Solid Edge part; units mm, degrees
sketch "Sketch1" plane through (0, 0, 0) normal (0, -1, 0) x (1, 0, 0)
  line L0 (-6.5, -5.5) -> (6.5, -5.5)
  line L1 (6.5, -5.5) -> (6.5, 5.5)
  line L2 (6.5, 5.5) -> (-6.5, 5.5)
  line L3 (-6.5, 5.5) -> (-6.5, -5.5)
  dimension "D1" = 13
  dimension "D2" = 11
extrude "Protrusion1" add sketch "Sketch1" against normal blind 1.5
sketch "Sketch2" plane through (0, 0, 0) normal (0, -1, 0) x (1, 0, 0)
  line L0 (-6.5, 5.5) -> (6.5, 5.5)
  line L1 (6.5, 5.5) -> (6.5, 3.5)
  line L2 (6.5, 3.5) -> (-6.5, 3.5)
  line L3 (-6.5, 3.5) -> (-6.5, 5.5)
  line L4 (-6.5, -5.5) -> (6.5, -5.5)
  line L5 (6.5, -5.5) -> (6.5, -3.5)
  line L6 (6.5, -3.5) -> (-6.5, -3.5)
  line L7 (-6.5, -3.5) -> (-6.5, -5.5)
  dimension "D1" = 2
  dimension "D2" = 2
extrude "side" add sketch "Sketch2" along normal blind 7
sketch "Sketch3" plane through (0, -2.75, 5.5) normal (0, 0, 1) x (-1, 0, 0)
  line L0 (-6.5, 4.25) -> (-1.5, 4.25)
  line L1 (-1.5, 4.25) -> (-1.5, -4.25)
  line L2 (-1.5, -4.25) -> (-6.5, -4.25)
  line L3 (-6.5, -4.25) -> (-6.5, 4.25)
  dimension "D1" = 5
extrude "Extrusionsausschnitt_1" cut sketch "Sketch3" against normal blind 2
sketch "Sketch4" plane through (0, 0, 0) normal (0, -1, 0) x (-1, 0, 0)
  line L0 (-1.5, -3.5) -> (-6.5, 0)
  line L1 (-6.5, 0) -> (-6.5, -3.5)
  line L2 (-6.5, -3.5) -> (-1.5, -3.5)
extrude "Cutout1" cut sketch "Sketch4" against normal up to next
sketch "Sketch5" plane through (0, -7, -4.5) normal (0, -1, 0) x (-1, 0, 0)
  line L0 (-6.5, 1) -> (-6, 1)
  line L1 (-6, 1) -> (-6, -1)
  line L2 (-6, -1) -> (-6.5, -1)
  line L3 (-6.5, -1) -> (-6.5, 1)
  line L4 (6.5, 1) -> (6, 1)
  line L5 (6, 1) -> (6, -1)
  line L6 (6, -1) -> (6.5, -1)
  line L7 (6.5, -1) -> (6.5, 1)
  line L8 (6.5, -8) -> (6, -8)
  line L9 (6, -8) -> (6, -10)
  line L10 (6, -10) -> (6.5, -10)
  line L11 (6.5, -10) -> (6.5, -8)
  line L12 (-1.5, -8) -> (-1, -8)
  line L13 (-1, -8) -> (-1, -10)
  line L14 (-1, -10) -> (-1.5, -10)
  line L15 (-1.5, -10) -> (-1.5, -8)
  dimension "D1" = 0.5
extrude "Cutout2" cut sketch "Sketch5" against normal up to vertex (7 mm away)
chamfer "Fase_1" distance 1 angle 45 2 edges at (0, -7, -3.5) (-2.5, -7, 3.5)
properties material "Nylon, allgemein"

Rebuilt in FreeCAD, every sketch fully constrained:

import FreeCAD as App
import Part
import Sketcher
from FreeCAD import Vector
Q = App.Units.Quantity


def edges_at(feature, points):
    """Names of the edges that pass closest to the given points."""
    edges = feature.Shape.Edges
    near = lambda p: min(range(len(edges)), key=lambda i: edges[i].distToShape(Part.Vertex(*p))[0])
    return sorted({f"Edge{near(p) + 1}" for p in points})


def add_polygon(sketch, points):
    """Adds a closed chain of lines whose ends are joined by coincident constraints."""
    first, n = sketch.GeometryCount, len(points)
    for a, b in zip(points, points[1:] + points[:1]):
        sketch.addGeometry(Part.LineSegment(App.Vector(*a, 0), App.Vector(*b, 0)), False)
    for i in range(n):
        sketch.addConstraint(Sketcher.Constraint("Coincident", first + i, 2, first + (i + 1) % n, 1))

doc = App.newDocument("Part")
body = doc.addObject("PartDesign::Body", "Body")

# Sketch on XZ plane
sketch1 = body.newObject("Sketcher::SketchObject", "Sketch")
sketch1.AttachmentSupport = (doc.getObject("XZ_Plane"), [""])
sketch1.MapMode = "FlatFace"
add_polygon(sketch1, [(-6.5, 5.5), (-6.5, -5.5), (6.5, -5.5), (6.5, 5.5)])  # lines 0-3
sketch1.addConstraint(Sketcher.Constraint("Vertical", 0))
sketch1.addConstraint(Sketcher.Constraint("Horizontal", 1))
sketch1.addConstraint(Sketcher.Constraint("Vertical", 2))
sketch1.addConstraint(Sketcher.Constraint("Horizontal", 3))
sketch1.addConstraint(Sketcher.Constraint("Symmetric", 0, 2, 2, 2, -1, 1))
sketch1.addConstraint(Sketcher.Constraint("DistanceX", 0, 2, -1, 1, Q("6.5 mm")))
sketch1.addConstraint(Sketcher.Constraint("DistanceY", 0, 2, 0, 1, Q("11 mm")))
pad1 = body.newObject("PartDesign::Pad", "Pad")
pad1.Profile = sketch1
pad1.Length = 1.5
pad1.Reversed = True

# Sketch on XZ plane
sketch2 = body.newObject("Sketcher::SketchObject", "Sketch001")
sketch2.AttachmentSupport = (doc.getObject("XZ_Plane"), [""])
sketch2.MapMode = "FlatFace"
add_polygon(sketch2, [(6.5, 5.5), (-6.5, 5.5), (-6.5, 3.5), (6.5, 3.5)])  # lines 0-3
add_polygon(sketch2, [(-6.5, -3.5), (-6.5, -5.5), (6.5, -5.5), (6.5, -3.5)])  # lines 4-7
sketch2.addConstraint(Sketcher.Constraint("Horizontal", 0))
sketch2.addConstraint(Sketcher.Constraint("Vertical", 1))
sketch2.addConstraint(Sketcher.Constraint("Horizontal", 2))
sketch2.addConstraint(Sketcher.Constraint("Vertical", 3))
sketch2.addConstraint(Sketcher.Constraint("Vertical", 4))
sketch2.addConstraint(Sketcher.Constraint("Horizontal", 5))
sketch2.addConstraint(Sketcher.Constraint("Vertical", 6))
sketch2.addConstraint(Sketcher.Constraint("Horizontal", 7))
sketch2.addConstraint(Sketcher.Constraint("Symmetric", 3, 2, 4, 2, -1, 1))
sketch2.addConstraint(Sketcher.Constraint("Symmetric", 1, 2, 6, 2, -1, 1))
sketch2.addConstraint(Sketcher.Constraint("Vertical", 1, 2, 4, 2))
sketch2.addConstraint(Sketcher.Constraint("DistanceX", 0, 2, -1, 1, Q("6.5 mm")))
sketch2.addConstraint(Sketcher.Constraint("DistanceY", 1, 2, 1, 1, Q("2 mm")))
sketch2.addConstraint(Sketcher.Constraint("DistanceY", 4, 2, 1, 2, Q("9 mm")))
pad2 = body.newObject("PartDesign::Pad", "Pad001")
pad2.Profile = sketch2
pad2.Length = 7

# Sketch on XY plane
sketch3 = body.newObject("Sketcher::SketchObject", "Sketch002")
sketch3.AttachmentSupport = (doc.getObject("XY_Plane"), [""])
sketch3.MapMode = "FlatFace"
sketch3.AttachmentOffset = App.Placement(Vector(0, 0, 5.5), App.Rotation())
add_polygon(sketch3, [(1.5, -7), (6.5, -7), (6.5, 1.5), (1.5, 1.5)])  # lines 0-3
sketch3.addConstraint(Sketcher.Constraint("Horizontal", 0))
sketch3.addConstraint(Sketcher.Constraint("Vertical", 1))
sketch3.addConstraint(Sketcher.Constraint("Horizontal", 2))
sketch3.addConstraint(Sketcher.Constraint("Vertical", 3))
sketch3.addConstraint(Sketcher.Constraint("DistanceX", -1, 1, 0, 2, Q("6.5 mm")))
sketch3.addConstraint(Sketcher.Constraint("DistanceX", 0, 1, 0, 2, Q("5 mm")))
sketch3.addConstraint(Sketcher.Constraint("DistanceY", 1, 1, 1, 2, Q("8.5 mm")))
sketch3.addConstraint(Sketcher.Constraint("DistanceY", 0, 2, -1, 1, Q("7 mm")))
pocket1 = body.newObject("PartDesign::Pocket", "Pocket")
pocket1.Profile = sketch3
pocket1.Length = 2

# Sketch on XZ plane
sketch4 = body.newObject("Sketcher::SketchObject", "Sketch003")
sketch4.AttachmentSupport = (doc.getObject("XZ_Plane"), [""])
sketch4.MapMode = "FlatFace"
add_polygon(sketch4, [(6.5, 3.5), (1.5, 3.5), (6.5, 0)])  # lines 0-2
sketch4.addConstraint(Sketcher.Constraint("Horizontal", 0))
sketch4.addConstraint(Sketcher.Constraint("Vertical", 2))
sketch4.addConstraint(Sketcher.Constraint("PointOnObject", 1, 2, -1))
sketch4.addConstraint(Sketcher.Constraint("DistanceX", 0, 2, 0, 1, Q("5 mm")))
sketch4.addConstraint(Sketcher.Constraint("DistanceY", 2, 1, 2, 2, Q("3.5 mm")))
sketch4.addConstraint(Sketcher.Constraint("DistanceX", -1, 1, 0, 2, Q("1.5 mm")))
pocket2 = body.newObject("PartDesign::Pocket", "Pocket001")
pocket2.Profile = sketch4
pocket2.Type = "UpToFirst"

# Sketch on XZ plane
sketch5 = body.newObject("Sketcher::SketchObject", "Sketch004")
sketch5.AttachmentSupport = (doc.getObject("XZ_Plane"), [""])
sketch5.MapMode = "FlatFace"
sketch5.AttachmentOffset = App.Placement(Vector(0, 0, 7), App.Rotation())
add_polygon(sketch5, [(6, -5.5), (6.5, -5.5), (6.5, -3.5), (6, -3.5)])  # lines 0-3
add_polygon(sketch5, [(-6.5, -3.5), (-6.5, -5.5), (-6, -5.5), (-6, -3.5)])  # lines 4-7
add_polygon(sketch5, [(-6.5, 5.5), (-6.5, 3.5), (-6, 3.5), (-6, 5.5)])  # lines 8-11
add_polygon(sketch5, [(1, 3.5), (1.5, 3.5), (1.5, 5.5), (1, 5.5)])  # lines 12-15
sketch5.addConstraint(Sketcher.Constraint("Horizontal", 0))
sketch5.addConstraint(Sketcher.Constraint("Vertical", 1))
sketch5.addConstraint(Sketcher.Constraint("Horizontal", 2))
sketch5.addConstraint(Sketcher.Constraint("Vertical", 3))
sketch5.addConstraint(Sketcher.Constraint("Vertical", 4))
sketch5.addConstraint(Sketcher.Constraint("Horizontal", 5))
sketch5.addConstraint(Sketcher.Constraint("Vertical", 6))
sketch5.addConstraint(Sketcher.Constraint("Horizontal", 7))
sketch5.addConstraint(Sketcher.Constraint("Vertical", 8))
sketch5.addConstraint(Sketcher.Constraint("Horizontal", 9))
sketch5.addConstraint(Sketcher.Constraint("Vertical", 10))
sketch5.addConstraint(Sketcher.Constraint("Horizontal", 11))
sketch5.addConstraint(Sketcher.Constraint("Horizontal", 12))
sketch5.addConstraint(Sketcher.Constraint("Vertical", 13))
sketch5.addConstraint(Sketcher.Constraint("Horizontal", 14))
sketch5.addConstraint(Sketcher.Constraint("Vertical", 15))
sketch5.addConstraint(Sketcher.Constraint("Symmetric", 1, 2, 8, 2, -1, 1))
sketch5.addConstraint(Sketcher.Constraint("Symmetric", 3, 2, 10, 2, -1, 1))
sketch5.addConstraint(Sketcher.Constraint("Symmetric", 0, 2, 4, 2, -2))
sketch5.addConstraint(Sketcher.Constraint("Symmetric", 2, 2, 6, 2, -2))
sketch5.addConstraint(Sketcher.Constraint("Horizontal", 9, 2, 12, 2))
sketch5.addConstraint(Sketcher.Constraint("Horizontal", 11, 2, 13, 2))
sketch5.addConstraint(Sketcher.Constraint("Equal", 11, 12))
sketch5.addConstraint(Sketcher.Constraint("DistanceX", -1, 1, 0, 2, Q("6.5 mm")))
sketch5.addConstraint(Sketcher.Constraint("DistanceY", 1, 1, 1, 2, Q("2 mm")))
sketch5.addConstraint(Sketcher.Constraint("DistanceX", 0, 1, 0, 2, Q("0.5 mm")))
sketch5.addConstraint(Sketcher.Constraint("DistanceX", -1, 1, 14, 2, Q("1 mm")))
sketch5.addConstraint(Sketcher.Constraint("DistanceY", 7, 2, 8, 2, Q("7 mm")))
pocket3 = body.newObject("PartDesign::Pocket", "Pocket002")
pocket3.Profile = sketch5
pocket3.Length = 7
doc.recompute()

chamfer = body.newObject("PartDesign::Chamfer", "Chamfer")
chamfer.Base = (pocket3, edges_at(pocket3, [(0, -7, -3.5), (-2.5, -7, 3.5)]))
chamfer.Size = 1

doc.recompute()
